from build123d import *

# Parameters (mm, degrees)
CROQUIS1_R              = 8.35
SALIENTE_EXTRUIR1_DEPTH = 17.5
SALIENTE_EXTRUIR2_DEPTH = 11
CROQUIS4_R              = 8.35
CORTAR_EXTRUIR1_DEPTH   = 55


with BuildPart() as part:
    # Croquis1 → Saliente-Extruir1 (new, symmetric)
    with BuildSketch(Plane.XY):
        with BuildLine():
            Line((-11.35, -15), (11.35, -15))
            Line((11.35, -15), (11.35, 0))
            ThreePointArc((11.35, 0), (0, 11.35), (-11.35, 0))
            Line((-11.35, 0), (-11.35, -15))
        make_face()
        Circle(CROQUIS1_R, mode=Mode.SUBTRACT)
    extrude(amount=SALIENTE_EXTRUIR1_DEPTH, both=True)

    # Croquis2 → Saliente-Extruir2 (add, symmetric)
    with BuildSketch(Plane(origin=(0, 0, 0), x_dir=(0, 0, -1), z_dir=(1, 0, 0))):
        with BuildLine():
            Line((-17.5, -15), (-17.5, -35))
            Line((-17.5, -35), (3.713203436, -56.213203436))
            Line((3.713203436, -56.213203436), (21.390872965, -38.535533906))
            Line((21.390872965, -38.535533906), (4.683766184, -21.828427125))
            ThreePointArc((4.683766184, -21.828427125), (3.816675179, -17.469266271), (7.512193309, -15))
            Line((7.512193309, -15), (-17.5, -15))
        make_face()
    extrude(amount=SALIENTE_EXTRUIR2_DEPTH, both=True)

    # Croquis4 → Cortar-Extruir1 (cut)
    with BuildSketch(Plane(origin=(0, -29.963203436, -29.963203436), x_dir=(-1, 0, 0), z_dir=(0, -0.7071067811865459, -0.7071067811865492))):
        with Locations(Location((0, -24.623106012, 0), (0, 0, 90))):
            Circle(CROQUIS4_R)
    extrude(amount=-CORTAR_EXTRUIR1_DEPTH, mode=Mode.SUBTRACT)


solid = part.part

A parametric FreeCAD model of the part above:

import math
import FreeCAD as App
import Part
import Sketcher
Q = App.Units.Quantity

doc = App.newDocument("Part")
body = doc.addObject("PartDesign::Body", "Body")

# Sketch on XY plane
sketch1 = body.newObject("Sketcher::SketchObject", "Sketch")
sketch1.AttachmentSupport = (doc.getObject("XY_Plane"), [""])
sketch1.MapMode = "FlatFace"
sketch1.addGeometry(Part.LineSegment(App.Vector(-11, -15, 0), App.Vector(11, -15, 0)), False)
sketch1.addGeometry(Part.LineSegment(App.Vector(11, -15, 0), App.Vector(11, 0, 0)), False)
sketch1.addGeometry(Part.ArcOfCircle(Part.Circle(App.Vector(0, 0, 0), App.Vector(0, 0, 1), 11), math.radians(0), math.radians(180)), False)
sketch1.addGeometry(Part.LineSegment(App.Vector(-11, 0, 0), App.Vector(-11, -15, 0)), False)
sketch1.addGeometry(Part.Circle(App.Vector(0, 0, 0), App.Vector(0, 0, 1), 8), False)
sketch1.addConstraint(Sketcher.Constraint("Coincident", 0, 2, 1, 1))
sketch1.addConstraint(Sketcher.Constraint("Tangent", 1, 2, 2, 1))
sketch1.addConstraint(Sketcher.Constraint("Tangent", 2, 2, 3, 1))
sketch1.addConstraint(Sketcher.Constraint("Coincident", 3, 2, 0, 1))
sketch1.addConstraint(Sketcher.Constraint("Horizontal", 0))
sketch1.addConstraint(Sketcher.Constraint("Vertical", 1))
sketch1.addConstraint(Sketcher.Constraint("Vertical", 3))
sketch1.addConstraint(Sketcher.Constraint("Coincident", 2, 3, -1, 1))
sketch1.addConstraint(Sketcher.Constraint("Coincident", 4, 3, -1, 1))
sketch1.addConstraint(Sketcher.Constraint("Diameter", 4, 16.7))
sketch1.addConstraint(Sketcher.Constraint("DistanceY", 1, 1, 1, 2, 15.0))
sketch1.addConstraint(Sketcher.Constraint("Radius", 2, 11.35))
pad1 = body.newObject("PartDesign::Pad", "Pad")
pad1.Profile = sketch1
pad1.Length = 35
pad1.Midplane = True

# Sketch on YZ plane
sketch2 = body.newObject("Sketcher::SketchObject", "Sketch001")
sketch2.AttachmentSupport = (doc.getObject("YZ_Plane"), [""])
sketch2.MapMode = "FlatFace"
sketch2.addGeometry(Part.LineSegment(App.Vector(-15, 17.5, 0), App.Vector(-35, 17.5, 0)), False)
sketch2.addGeometry(Part.LineSegment(App.Vector(-35, 17.5, 0), App.Vector(-56.2, -3.7, 0)), False)
sketch2.addGeometry(Part.LineSegment(App.Vector(-56.2, -3.7, 0), App.Vector(-38.5, -21.4, 0)), False)
sketch2.addGeometry(Part.LineSegment(App.Vector(-38.5, -21.4, 0), App.Vector(-21.8, -4.7, 0)), False)
sketch2.addGeometry(Part.ArcOfCircle(Part.Circle(App.Vector(-19, -7.5, 0), App.Vector(0, 0, 1), 4), math.radians(0), math.radians(135)), False)
sketch2.addGeometry(Part.LineSegment(App.Vector(-15, -7.5, 0), App.Vector(-15, 17.5, 0)), False)
sketch2.addConstraint(Sketcher.Constraint("Coincident", 0, 2, 1, 1))
sketch2.addConstraint(Sketcher.Constraint("Coincident", 1, 2, 2, 1))
sketch2.addConstraint(Sketcher.Constraint("Coincident", 2, 2, 3, 1))
sketch2.addConstraint(Sketcher.Constraint("Tangent", 3, 2, 4, 2))
sketch2.addConstraint(Sketcher.Constraint("Tangent", 4, 1, 5, 1))
sketch2.addConstraint(Sketcher.Constraint("Coincident", 5, 2, 0, 1))
sketch2.addConstraint(Sketcher.Constraint("Horizontal", 0))
sketch2.addConstraint(Sketcher.Constraint("Vertical", 5))
sketch2.addConstraint(Sketcher.Constraint("Perpendicular", 1, 2))
sketch2.addConstraint(Sketcher.Constraint("Perpendicular", 2, 3))
sketch2.addConstraint(Sketcher.Constraint("Radius", 4, 4.0))
sketch2.addConstraint(Sketcher.Constraint("DistanceX", 0, 2, 0, 1, 20.0))
sketch2.addConstraint(Sketcher.Constraint("Angle", 1, Q("-135 deg")))
sketch2.addConstraint(Sketcher.Constraint("Distance", 1, 30.0))
sketch2.addConstraint(Sketcher.Constraint("Distance", 2, 25.0))
sketch2.addConstraint(Sketcher.Constraint("DistanceX", 4, 3, -1, 1, 19.0))
sketch2.addConstraint(Sketcher.Constraint("DistanceY", -1, 1, 0, 2, 17.5))
pad2 = body.newObject("PartDesign::Pad", "Pad001")
pad2.Profile = sketch2
pad2.Length = 22
pad2.Midplane = True

# Sketch on an angled plane
sketch3 = body.newObject("Sketcher::SketchObject", "Sketch002")
sketch3.Placement = App.Placement(App.Vector(0, -29.963203, -29.963203), App.Rotation(App.Vector(-1, 0, 0), App.Vector(0, 0.707106781, -0.707106781), App.Vector(0, -0.707106781, -0.707106781), "ZXY"))
sketch3.addGeometry(Part.Circle(App.Vector(0, -25, 0), App.Vector(0, 0, 1), 8), False)
sketch3.addConstraint(Sketcher.Constraint("PointOnObject", 0, 3, -2))
sketch3.addConstraint(Sketcher.Constraint("Diameter", 0, 16.7))
sketch3.addConstraint(Sketcher.Constraint("DistanceY", 0, 3, -1, 1, 24.623106))
pocket1 = body.newObject("PartDesign::Pocket", "Pocket")
pocket1.Profile = sketch3
pocket1.Length = 55

doc.recompute()
